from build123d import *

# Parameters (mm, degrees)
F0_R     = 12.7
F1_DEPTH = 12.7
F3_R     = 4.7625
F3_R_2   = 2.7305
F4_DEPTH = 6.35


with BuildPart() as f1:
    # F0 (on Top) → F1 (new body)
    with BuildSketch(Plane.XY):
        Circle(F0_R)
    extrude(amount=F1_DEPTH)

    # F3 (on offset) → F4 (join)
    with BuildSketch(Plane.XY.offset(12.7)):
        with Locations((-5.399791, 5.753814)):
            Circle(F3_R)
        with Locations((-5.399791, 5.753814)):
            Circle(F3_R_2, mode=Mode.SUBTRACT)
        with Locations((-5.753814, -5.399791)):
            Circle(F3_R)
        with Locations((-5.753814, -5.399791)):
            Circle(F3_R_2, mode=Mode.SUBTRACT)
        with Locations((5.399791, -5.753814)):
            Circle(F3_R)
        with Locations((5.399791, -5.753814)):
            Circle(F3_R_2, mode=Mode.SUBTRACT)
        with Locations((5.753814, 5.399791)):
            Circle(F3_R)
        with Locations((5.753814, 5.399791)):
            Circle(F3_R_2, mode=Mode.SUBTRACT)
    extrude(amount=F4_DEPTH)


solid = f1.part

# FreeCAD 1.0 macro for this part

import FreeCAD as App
import Part
import Sketcher

V = App.Vector
Q = App.Units.Quantity

doc = App.newDocument("Part")
body = doc.addObject("PartDesign::Body", "Body")

sketch1 = body.newObject("Sketcher::SketchObject", "Sketch")
sketch1.AttachmentSupport = (doc.getObject("XY_Plane"), [""])
sketch1.MapMode = "FlatFace"
sketch1.addGeometry(Part.Circle(V(0, 0, 0), V(0, 0, 1), 12.7), False)
sketch1.addConstraint(Sketcher.Constraint("Coincident", 0, 3, -1, 1))
sketch1.addConstraint(Sketcher.Constraint("Diameter", 0, Q("1 in")))
pad1 = body.newObject("PartDesign::Pad", "Pad")
pad1.Profile = sketch1
pad1.Length = Q("0.5 in")

sketch2 = body.newObject("Sketcher::SketchObject", "Sketch001")
sketch2.AttachmentSupport = (doc.getObject("XY_Plane"), [""])
sketch2.MapMode = "FlatFace"
sketch2.AttachmentOffset = App.Placement(V(0, 0, 0.5 * 25.4), App.Rotation())
sketch2.addGeometry(Part.Circle(V(-5.399791, 5.753814, 0), V(0, 0, 1), 4.7625), False)
sketch2.addGeometry(Part.Circle(V(-5.399791, 5.753814, 0), V(0, 0, 1), 2.7305), False)
sketch2.addGeometry(Part.Circle(V(-5.753814, -5.399791, 0), V(0, 0, 1), 4.7625), False)
sketch2.addGeometry(Part.Circle(V(-5.753814, -5.399791, 0), V(0, 0, 1), 2.7305), False)
sketch2.addGeometry(Part.Circle(V(5.399791, -5.753814, 0), V(0, 0, 1), 4.7625), False)
sketch2.addGeometry(Part.Circle(V(5.399791, -5.753814, 0), V(0, 0, 1), 2.7305), False)
sketch2.addGeometry(Part.Circle(V(5.753814, 5.399791, 0), V(0, 0, 1), 4.7625), False)
sketch2.addGeometry(Part.Circle(V(5.753814, 5.399791, 0), V(0, 0, 1), 2.7305), False)
sketch2.addConstraint(Sketcher.Constraint("Coincident", 1, 3, 0, 3))
sketch2.addConstraint(Sketcher.Constraint("Coincident", 3, 3, 2, 3))
sketch2.addConstraint(Sketcher.Constraint("Coincident", 5, 3, 4, 3))
sketch2.addConstraint(Sketcher.Constraint("Coincident", 7, 3, 6, 3))
sketch2.addConstraint(Sketcher.Constraint("Equal", 0, 2))
sketch2.addConstraint(Sketcher.Constraint("Equal", 1, 3))
sketch2.addConstraint(Sketcher.Constraint("Equal", 2, 4))
sketch2.addConstraint(Sketcher.Constraint("Equal", 3, 5))
sketch2.addConstraint(Sketcher.Constraint("Equal", 4, 6))
sketch2.addConstraint(Sketcher.Constraint("Equal", 5, 7))
sketch2.addConstraint(Sketcher.Constraint("Symmetric", 0, 3, 4, 3, -1, 1))
sketch2.addConstraint(Sketcher.Constraint("Symmetric", 2, 3, 6, 3, -1, 1))
sketch2.addConstraint(Sketcher.Constraint("Diameter", 0, Q("0.375 in")))
sketch2.addConstraint(Sketcher.Constraint("Diameter", 1, Q("0.215 in")))
sketch2.addConstraint(Sketcher.Constraint("DistanceX", 0, 3, -1, 1, 5.399791))
sketch2.addConstraint(Sketcher.Constraint("DistanceY", 2, 3, -1, 1, 5.399791))
sketch2.addConstraint(Sketcher.Constraint("DistanceY", -1, 1, 0, 3, 5.753814))
sketch2.addConstraint(Sketcher.Constraint("DistanceX", 2, 3, -1, 1, 5.753814))
pad2 = body.newObject("PartDesign::Pad", "Pad001")
pad2.Profile = sketch2
pad2.Length = Q("0.25 in")

doc.recompute()
